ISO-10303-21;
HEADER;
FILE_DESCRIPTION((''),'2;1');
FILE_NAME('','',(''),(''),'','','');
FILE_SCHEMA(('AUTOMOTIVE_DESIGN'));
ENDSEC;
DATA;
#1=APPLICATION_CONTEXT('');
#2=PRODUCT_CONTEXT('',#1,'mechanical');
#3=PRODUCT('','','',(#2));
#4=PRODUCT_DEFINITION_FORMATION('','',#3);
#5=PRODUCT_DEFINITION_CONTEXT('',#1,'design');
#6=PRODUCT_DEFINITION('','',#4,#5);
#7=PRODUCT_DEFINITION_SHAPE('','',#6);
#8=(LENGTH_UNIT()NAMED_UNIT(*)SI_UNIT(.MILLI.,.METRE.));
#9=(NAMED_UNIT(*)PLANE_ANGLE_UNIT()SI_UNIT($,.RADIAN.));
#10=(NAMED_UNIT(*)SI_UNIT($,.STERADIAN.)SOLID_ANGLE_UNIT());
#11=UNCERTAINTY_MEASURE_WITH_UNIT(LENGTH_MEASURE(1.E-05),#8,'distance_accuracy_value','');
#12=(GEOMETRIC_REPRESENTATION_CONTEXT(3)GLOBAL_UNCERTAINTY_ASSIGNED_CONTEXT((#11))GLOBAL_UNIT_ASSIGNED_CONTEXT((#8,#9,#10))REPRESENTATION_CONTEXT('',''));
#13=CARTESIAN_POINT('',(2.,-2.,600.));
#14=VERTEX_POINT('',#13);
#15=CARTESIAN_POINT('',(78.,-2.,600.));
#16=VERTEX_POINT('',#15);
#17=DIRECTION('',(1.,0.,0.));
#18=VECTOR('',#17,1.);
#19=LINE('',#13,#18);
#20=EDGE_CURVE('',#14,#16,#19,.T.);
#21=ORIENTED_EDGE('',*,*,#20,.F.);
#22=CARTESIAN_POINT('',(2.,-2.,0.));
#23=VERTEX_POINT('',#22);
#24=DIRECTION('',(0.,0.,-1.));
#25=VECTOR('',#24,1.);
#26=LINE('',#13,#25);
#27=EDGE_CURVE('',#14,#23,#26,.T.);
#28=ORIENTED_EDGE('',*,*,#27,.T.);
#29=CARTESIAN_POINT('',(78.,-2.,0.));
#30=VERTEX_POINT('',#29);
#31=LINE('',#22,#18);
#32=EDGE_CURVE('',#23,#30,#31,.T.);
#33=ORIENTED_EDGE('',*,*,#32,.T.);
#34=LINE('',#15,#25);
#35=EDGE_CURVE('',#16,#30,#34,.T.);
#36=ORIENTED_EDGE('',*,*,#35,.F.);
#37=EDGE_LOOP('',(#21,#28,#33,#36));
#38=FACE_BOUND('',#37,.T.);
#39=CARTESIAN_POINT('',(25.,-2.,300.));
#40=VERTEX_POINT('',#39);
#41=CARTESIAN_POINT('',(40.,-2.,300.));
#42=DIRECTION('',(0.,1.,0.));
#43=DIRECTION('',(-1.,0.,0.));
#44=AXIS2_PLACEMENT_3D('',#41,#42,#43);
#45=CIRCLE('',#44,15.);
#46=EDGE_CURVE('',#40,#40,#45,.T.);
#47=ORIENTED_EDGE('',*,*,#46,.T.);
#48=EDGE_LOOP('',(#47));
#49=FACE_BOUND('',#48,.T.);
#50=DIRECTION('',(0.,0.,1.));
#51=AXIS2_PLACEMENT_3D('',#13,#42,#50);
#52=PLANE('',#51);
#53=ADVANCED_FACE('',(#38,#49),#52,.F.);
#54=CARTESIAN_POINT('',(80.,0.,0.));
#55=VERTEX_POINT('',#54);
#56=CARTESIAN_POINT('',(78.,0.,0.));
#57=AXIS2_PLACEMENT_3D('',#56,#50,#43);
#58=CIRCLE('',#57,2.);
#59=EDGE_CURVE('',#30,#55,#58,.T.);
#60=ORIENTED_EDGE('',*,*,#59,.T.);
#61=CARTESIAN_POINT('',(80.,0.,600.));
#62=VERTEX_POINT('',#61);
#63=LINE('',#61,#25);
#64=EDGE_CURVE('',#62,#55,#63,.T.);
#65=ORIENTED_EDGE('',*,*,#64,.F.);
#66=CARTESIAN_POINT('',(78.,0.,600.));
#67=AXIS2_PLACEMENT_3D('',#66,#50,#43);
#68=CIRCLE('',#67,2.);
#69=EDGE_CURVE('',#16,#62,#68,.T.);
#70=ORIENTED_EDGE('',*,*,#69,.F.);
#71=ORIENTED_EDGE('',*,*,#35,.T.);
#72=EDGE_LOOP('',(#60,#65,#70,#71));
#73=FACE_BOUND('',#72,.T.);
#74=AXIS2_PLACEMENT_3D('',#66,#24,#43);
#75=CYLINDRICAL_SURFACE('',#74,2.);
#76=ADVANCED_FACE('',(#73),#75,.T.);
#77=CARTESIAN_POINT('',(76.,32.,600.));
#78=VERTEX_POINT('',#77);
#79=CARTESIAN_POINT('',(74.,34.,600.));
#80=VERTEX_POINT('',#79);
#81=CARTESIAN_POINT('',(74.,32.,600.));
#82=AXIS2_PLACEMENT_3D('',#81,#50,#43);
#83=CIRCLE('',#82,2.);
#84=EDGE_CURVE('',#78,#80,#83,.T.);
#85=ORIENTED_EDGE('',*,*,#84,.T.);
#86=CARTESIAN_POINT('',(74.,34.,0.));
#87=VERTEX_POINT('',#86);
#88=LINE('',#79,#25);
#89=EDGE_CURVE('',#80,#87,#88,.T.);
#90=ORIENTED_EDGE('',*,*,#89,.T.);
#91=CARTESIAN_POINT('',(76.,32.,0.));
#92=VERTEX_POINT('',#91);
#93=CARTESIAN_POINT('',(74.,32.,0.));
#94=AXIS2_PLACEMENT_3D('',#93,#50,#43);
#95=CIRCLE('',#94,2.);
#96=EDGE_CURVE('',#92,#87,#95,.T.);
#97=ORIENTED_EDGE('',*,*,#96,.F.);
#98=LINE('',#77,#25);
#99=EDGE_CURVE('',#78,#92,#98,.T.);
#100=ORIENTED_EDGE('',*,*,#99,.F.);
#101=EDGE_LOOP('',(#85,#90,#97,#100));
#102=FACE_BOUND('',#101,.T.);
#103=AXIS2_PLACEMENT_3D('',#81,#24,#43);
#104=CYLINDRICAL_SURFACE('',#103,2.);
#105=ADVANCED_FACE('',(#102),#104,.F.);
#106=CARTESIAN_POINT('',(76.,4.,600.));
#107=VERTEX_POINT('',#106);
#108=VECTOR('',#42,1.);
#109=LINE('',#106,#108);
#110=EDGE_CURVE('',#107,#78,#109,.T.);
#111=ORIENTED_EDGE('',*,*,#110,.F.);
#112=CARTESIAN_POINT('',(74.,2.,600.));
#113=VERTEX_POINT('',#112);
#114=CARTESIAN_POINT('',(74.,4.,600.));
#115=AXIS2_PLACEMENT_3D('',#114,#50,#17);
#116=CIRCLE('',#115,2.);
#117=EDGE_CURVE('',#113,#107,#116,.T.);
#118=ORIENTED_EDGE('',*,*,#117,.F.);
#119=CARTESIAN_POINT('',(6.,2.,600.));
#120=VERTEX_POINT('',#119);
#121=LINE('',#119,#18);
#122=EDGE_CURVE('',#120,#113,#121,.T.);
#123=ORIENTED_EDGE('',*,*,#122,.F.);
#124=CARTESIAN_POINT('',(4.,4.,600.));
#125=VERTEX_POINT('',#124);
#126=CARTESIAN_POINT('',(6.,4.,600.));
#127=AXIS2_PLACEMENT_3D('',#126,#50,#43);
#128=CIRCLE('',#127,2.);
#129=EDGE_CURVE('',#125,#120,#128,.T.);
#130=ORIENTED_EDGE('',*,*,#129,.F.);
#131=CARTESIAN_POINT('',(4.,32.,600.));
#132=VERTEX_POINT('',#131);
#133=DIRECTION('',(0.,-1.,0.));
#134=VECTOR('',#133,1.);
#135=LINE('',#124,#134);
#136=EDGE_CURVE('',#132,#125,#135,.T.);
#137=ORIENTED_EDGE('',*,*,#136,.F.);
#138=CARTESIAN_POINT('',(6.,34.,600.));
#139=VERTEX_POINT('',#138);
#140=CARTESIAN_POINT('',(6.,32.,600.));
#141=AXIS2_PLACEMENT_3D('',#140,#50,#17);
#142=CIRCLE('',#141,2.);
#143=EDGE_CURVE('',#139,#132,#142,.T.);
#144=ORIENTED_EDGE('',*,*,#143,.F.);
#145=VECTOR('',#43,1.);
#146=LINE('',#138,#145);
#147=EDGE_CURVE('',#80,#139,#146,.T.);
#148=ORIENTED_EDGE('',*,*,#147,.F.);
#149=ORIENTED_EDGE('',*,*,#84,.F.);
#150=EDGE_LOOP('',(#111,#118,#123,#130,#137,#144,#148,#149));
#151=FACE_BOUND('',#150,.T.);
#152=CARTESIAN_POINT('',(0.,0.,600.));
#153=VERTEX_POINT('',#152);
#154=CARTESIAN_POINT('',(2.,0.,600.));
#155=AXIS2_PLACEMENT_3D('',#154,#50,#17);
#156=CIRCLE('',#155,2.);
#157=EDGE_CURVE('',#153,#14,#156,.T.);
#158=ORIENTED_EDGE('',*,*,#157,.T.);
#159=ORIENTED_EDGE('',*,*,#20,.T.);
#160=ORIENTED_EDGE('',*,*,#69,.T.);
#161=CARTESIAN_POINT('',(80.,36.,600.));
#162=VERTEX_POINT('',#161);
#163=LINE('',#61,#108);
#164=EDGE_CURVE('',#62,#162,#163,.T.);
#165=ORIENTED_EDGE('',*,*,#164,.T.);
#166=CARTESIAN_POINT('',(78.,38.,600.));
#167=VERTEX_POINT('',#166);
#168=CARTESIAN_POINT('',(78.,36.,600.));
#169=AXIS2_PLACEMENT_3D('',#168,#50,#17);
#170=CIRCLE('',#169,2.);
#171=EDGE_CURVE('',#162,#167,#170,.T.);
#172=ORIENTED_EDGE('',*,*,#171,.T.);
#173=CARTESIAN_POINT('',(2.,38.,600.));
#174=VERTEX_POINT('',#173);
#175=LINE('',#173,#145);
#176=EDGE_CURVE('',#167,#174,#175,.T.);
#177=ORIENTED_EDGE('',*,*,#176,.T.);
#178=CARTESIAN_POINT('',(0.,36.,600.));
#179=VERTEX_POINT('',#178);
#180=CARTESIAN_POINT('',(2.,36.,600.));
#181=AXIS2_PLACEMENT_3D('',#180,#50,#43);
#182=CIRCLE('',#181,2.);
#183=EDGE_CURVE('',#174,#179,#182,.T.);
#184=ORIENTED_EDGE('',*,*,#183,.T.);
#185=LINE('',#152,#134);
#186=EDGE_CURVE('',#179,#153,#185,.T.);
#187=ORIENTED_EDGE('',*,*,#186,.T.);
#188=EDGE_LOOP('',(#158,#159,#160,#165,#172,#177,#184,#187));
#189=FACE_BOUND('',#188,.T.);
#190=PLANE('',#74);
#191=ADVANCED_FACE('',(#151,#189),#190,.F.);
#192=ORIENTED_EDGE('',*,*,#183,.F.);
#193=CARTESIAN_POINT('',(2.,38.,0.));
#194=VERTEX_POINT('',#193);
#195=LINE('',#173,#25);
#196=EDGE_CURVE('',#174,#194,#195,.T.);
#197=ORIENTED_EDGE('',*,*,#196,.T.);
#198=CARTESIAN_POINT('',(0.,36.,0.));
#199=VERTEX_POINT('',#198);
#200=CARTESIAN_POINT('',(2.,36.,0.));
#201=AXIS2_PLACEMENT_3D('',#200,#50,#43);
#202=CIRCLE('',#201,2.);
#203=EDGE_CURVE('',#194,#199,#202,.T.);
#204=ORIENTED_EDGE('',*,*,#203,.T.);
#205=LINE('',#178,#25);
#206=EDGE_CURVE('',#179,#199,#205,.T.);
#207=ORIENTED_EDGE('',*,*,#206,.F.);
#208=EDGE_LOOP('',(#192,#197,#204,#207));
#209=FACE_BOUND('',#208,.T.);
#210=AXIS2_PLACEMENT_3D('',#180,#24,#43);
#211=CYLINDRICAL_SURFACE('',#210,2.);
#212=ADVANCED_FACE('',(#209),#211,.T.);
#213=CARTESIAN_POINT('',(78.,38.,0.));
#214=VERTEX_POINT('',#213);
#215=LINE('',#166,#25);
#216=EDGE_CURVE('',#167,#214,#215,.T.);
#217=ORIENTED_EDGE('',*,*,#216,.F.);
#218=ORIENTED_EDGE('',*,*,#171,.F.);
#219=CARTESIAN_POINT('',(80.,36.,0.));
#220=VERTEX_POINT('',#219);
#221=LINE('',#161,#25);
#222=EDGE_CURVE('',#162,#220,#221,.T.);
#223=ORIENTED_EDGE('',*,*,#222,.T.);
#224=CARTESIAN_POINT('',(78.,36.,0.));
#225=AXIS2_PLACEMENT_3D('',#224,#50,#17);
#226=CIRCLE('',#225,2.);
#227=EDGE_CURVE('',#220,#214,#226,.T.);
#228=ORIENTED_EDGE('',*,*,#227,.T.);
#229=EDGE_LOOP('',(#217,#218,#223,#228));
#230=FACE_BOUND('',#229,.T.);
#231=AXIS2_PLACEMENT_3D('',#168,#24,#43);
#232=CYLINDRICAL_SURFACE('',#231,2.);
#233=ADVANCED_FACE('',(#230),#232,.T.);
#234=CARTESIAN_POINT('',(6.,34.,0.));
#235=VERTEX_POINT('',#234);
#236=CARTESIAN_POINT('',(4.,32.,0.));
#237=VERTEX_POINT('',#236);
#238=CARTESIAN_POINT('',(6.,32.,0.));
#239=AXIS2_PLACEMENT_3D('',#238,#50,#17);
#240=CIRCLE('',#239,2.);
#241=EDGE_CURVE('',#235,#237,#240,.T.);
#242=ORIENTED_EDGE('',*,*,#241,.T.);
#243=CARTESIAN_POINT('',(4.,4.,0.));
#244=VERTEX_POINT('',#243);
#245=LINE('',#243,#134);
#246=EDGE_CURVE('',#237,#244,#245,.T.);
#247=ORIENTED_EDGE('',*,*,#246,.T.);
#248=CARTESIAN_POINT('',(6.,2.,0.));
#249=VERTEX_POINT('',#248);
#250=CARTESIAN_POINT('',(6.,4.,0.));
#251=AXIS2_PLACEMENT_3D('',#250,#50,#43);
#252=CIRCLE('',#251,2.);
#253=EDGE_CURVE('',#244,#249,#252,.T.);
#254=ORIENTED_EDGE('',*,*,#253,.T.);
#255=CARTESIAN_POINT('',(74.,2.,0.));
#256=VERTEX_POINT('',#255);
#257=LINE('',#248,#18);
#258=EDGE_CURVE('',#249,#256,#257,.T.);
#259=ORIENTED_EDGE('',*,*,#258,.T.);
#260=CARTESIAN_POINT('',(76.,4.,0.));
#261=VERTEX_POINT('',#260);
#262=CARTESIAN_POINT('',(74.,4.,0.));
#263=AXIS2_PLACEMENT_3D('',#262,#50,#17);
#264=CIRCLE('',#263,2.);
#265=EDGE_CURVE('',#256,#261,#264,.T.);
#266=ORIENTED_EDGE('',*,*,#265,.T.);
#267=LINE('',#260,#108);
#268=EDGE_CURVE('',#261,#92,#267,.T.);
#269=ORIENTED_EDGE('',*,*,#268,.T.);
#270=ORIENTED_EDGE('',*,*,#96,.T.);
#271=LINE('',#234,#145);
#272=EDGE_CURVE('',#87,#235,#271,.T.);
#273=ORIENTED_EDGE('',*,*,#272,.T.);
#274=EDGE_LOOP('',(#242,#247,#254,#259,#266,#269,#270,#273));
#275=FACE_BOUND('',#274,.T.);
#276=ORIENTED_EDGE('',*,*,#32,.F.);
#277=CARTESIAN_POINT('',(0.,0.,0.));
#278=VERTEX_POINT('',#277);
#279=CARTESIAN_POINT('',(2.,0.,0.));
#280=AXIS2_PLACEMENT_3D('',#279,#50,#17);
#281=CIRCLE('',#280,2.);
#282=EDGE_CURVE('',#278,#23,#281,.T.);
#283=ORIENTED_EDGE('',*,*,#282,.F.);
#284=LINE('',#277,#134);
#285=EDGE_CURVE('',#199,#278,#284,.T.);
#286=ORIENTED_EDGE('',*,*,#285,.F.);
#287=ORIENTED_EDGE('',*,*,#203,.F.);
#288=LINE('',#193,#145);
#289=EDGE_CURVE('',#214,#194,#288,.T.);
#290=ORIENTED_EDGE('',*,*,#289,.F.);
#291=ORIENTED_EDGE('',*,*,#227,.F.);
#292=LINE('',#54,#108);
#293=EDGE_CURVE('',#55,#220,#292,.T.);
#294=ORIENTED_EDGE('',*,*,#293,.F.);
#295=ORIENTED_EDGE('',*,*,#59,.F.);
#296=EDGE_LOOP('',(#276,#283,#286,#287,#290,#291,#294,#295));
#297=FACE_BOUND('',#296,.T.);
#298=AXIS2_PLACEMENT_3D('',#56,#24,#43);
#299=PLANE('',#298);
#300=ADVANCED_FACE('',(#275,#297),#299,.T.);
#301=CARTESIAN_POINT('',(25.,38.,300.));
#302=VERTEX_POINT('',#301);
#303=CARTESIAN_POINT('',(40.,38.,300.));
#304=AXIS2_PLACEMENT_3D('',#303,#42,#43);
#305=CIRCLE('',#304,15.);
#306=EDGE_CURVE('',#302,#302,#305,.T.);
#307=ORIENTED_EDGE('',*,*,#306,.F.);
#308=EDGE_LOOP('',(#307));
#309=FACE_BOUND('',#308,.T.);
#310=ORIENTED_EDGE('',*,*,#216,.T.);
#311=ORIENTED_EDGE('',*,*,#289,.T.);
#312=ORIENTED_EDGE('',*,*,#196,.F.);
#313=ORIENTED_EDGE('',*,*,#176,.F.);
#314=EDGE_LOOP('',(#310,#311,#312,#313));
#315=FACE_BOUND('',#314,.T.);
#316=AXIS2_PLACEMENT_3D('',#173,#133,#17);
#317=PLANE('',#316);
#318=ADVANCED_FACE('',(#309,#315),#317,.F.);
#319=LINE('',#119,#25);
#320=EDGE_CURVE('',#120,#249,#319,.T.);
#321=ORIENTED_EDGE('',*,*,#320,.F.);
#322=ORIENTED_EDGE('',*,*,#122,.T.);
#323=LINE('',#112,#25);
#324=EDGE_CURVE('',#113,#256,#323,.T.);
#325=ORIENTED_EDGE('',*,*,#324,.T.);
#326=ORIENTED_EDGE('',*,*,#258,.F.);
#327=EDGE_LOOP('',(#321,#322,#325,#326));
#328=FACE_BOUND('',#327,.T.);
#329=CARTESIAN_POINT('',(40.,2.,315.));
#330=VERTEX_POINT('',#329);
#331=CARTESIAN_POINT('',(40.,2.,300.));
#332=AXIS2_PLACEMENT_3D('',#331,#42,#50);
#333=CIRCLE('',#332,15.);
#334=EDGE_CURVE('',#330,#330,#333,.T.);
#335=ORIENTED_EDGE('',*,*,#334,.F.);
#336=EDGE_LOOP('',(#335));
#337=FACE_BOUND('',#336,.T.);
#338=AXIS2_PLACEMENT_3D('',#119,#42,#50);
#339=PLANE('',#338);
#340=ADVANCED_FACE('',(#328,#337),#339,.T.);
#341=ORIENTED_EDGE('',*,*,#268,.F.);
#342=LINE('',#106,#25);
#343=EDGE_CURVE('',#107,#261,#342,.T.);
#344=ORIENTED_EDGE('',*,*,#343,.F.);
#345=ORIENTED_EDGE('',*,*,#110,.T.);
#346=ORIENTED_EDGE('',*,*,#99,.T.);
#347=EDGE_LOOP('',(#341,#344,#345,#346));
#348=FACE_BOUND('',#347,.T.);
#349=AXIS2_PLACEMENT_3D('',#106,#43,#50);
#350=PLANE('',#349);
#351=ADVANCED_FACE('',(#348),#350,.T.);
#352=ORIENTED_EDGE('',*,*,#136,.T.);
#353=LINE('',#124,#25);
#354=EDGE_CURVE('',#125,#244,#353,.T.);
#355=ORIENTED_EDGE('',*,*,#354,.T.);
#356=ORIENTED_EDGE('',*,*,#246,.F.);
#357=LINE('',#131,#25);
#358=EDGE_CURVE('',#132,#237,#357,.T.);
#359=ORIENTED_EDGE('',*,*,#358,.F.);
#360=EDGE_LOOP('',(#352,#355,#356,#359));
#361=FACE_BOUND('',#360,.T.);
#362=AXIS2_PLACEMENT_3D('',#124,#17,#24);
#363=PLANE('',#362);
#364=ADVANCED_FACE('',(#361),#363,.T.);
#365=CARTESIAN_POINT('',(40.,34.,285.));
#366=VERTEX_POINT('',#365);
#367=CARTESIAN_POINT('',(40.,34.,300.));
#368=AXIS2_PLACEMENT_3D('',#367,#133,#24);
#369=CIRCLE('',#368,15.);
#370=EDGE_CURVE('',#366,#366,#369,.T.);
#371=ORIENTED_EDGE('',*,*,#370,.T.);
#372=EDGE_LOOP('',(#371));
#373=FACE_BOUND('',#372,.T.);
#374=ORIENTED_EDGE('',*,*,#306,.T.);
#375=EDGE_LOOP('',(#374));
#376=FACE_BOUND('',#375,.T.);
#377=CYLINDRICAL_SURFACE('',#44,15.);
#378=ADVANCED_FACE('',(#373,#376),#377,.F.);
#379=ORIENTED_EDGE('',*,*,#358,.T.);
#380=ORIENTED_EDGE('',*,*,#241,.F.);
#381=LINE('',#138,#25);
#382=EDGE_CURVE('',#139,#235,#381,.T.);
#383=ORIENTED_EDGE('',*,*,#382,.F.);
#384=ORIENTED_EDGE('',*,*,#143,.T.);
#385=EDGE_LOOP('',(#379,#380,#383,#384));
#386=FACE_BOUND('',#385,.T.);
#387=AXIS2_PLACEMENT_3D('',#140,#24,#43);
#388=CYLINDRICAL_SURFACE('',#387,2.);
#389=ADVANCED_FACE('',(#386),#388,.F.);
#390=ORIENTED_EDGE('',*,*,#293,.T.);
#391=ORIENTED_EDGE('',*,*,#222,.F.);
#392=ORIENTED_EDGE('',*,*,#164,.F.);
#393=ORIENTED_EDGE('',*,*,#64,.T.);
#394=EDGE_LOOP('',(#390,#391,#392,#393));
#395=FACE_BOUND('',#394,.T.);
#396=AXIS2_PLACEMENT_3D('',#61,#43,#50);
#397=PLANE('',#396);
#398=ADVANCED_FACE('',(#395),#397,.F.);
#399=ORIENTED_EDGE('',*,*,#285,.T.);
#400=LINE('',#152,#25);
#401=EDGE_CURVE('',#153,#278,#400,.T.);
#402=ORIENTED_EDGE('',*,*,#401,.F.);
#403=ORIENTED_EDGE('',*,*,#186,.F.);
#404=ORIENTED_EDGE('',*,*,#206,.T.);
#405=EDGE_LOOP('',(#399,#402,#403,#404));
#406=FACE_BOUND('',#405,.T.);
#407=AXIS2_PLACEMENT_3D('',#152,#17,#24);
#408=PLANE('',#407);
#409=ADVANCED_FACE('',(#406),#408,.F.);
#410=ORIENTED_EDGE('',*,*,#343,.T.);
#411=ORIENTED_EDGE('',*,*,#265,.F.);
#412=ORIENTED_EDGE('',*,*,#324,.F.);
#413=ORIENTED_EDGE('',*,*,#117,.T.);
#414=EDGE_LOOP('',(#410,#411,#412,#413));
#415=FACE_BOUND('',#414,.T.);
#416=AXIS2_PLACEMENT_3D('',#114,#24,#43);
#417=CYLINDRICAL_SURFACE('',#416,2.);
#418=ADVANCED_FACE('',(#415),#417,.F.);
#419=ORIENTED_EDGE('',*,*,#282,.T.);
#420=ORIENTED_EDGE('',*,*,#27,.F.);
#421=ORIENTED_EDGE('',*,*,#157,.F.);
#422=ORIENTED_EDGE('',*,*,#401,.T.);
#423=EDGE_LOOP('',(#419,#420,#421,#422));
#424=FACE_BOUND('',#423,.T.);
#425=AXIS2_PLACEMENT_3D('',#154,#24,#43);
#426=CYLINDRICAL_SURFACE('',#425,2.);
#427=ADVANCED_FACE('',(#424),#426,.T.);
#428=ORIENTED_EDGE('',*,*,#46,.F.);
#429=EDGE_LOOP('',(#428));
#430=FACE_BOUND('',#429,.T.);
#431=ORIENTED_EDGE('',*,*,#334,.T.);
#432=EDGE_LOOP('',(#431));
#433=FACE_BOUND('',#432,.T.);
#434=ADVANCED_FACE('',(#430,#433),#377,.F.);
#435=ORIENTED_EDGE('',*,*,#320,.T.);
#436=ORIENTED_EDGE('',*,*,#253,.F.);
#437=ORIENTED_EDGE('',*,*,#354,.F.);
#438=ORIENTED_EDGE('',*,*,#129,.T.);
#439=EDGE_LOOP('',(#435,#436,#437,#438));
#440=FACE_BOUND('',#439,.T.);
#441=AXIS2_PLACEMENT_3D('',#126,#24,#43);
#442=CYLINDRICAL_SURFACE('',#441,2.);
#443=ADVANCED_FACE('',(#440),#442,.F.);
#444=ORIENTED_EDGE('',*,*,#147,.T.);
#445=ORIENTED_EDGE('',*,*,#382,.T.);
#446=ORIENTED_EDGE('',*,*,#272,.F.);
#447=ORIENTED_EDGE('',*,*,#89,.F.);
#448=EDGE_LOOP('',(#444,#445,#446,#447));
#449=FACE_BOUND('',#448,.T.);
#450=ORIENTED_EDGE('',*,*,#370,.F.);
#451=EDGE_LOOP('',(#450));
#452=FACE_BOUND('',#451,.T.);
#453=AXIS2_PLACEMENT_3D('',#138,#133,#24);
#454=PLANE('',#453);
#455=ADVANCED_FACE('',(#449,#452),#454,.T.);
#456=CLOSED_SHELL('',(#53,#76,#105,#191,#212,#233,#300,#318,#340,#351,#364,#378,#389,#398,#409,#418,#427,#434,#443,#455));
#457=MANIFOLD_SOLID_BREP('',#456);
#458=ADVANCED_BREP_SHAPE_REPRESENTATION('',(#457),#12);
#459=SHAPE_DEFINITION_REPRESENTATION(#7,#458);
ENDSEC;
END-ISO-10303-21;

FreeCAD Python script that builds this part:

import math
import FreeCAD as App
import Part
import Sketcher
from FreeCAD import Vector

doc = App.newDocument("Part")
body = doc.addObject("PartDesign::Body", "Body")

# Sketch on XY plane
sketch1 = body.newObject("Sketcher::SketchObject", "Sketch")
sketch1.AttachmentSupport = (doc.getObject("XY_Plane"), [""])
sketch1.MapMode = "FlatFace"
sketch1.addGeometry(Part.LineSegment(Vector(2, -2, 0), Vector(78, -2, 0)), False)
sketch1.addGeometry(Part.ArcOfCircle(Part.Circle(Vector(78, 0, 0), Vector(0, 0, 1), 2), math.radians(-90), math.radians(0)), False)
sketch1.addGeometry(Part.LineSegment(Vector(80, 0, 0), Vector(80, 36, 0)), False)
sketch1.addGeometry(Part.ArcOfCircle(Part.Circle(Vector(78, 36, 0), Vector(0, 0, 1), 2), math.radians(0), math.radians(90)), False)
sketch1.addGeometry(Part.LineSegment(Vector(78, 38, 0), Vector(2, 38, 0)), False)
sketch1.addGeometry(Part.ArcOfCircle(Part.Circle(Vector(2, 36, 0), Vector(0, 0, 1), 2), math.radians(90), math.radians(180)), False)
sketch1.addGeometry(Part.LineSegment(Vector(0, 36, 0), Vector(0, 0, 0)), False)
sketch1.addGeometry(Part.ArcOfCircle(Part.Circle(Vector(2, 0, 0), Vector(0, 0, 1), 2), math.radians(-180), math.radians(-90)), False)
sketch1.addGeometry(Part.ArcOfCircle(Part.Circle(Vector(6, 4, 0), Vector(0, 0, 1), 2), math.radians(-180), math.radians(-90)), False)
sketch1.addGeometry(Part.LineSegment(Vector(4, 4, 0), Vector(4, 32, 0)), False)
sketch1.addGeometry(Part.ArcOfCircle(Part.Circle(Vector(6, 32, 0), Vector(0, 0, 1), 2), math.radians(90), math.radians(180)), False)
sketch1.addGeometry(Part.LineSegment(Vector(6, 34, 0), Vector(74, 34, 0)), False)
sketch1.addGeometry(Part.ArcOfCircle(Part.Circle(Vector(74, 32, 0), Vector(0, 0, 1), 2), math.radians(0), math.radians(90)), False)
sketch1.addGeometry(Part.LineSegment(Vector(76, 32, 0), Vector(76, 4, 0)), False)
sketch1.addGeometry(Part.ArcOfCircle(Part.Circle(Vector(74, 4, 0), Vector(0, 0, 1), 2), math.radians(-90), math.radians(0)), False)
sketch1.addGeometry(Part.LineSegment(Vector(74, 2, 0), Vector(6, 2, 0)), False)
sketch1.addConstraint(Sketcher.Constraint("Tangent", 0, 2, 1, 1))
sketch1.addConstraint(Sketcher.Constraint("Tangent", 1, 2, 2, 1))
sketch1.addConstraint(Sketcher.Constraint("Tangent", 2, 2, 3, 1))
sketch1.addConstraint(Sketcher.Constraint("Tangent", 3, 2, 4, 1))
sketch1.addConstraint(Sketcher.Constraint("Tangent", 4, 2, 5, 1))
sketch1.addConstraint(Sketcher.Constraint("Tangent", 5, 2, 6, 1))
sketch1.addConstraint(Sketcher.Constraint("Tangent", 6, 2, 7, 1))
sketch1.addConstraint(Sketcher.Constraint("Tangent", 7, 2, 0, 1))
sketch1.addConstraint(Sketcher.Constraint("Tangent", 8, 1, 9, 1))
sketch1.addConstraint(Sketcher.Constraint("Tangent", 9, 2, 10, 2))
sketch1.addConstraint(Sketcher.Constraint("Tangent", 10, 1, 11, 1))
sketch1.addConstraint(Sketcher.Constraint("Tangent", 11, 2, 12, 2))
sketch1.addConstraint(Sketcher.Constraint("Tangent", 12, 1, 13, 1))
sketch1.addConstraint(Sketcher.Constraint("Tangent", 13, 2, 14, 2))
sketch1.addConstraint(Sketcher.Constraint("Tangent", 14, 1, 15, 1))
sketch1.addConstraint(Sketcher.Constraint("Tangent", 15, 2, 8, 2))
sketch1.addConstraint(Sketcher.Constraint("Horizontal", 0))
sketch1.addConstraint(Sketcher.Constraint("Vertical", 2))
sketch1.addConstraint(Sketcher.Constraint("Horizontal", 4))
sketch1.addConstraint(Sketcher.Constraint("Vertical", 6))
sketch1.addConstraint(Sketcher.Constraint("Vertical", 9))
sketch1.addConstraint(Sketcher.Constraint("Horizontal", 11))
sketch1.addConstraint(Sketcher.Constraint("Vertical", 13))
sketch1.addConstraint(Sketcher.Constraint("Horizontal", 15))
sketch1.addConstraint(Sketcher.Constraint("Coincident", 6, 2, -1, 1))
sketch1.addConstraint(Sketcher.Constraint("Equal", 1, 3))
sketch1.addConstraint(Sketcher.Constraint("Equal", 3, 5))
sketch1.addConstraint(Sketcher.Constraint("Equal", 5, 7))
sketch1.addConstraint(Sketcher.Constraint("Equal", 7, 8))
sketch1.addConstraint(Sketcher.Constraint("Equal", 8, 10))
sketch1.addConstraint(Sketcher.Constraint("Equal", 10, 12))
sketch1.addConstraint(Sketcher.Constraint("Equal", 12, 14))
sketch1.addConstraint(Sketcher.Constraint("Radius", 1, 2.0))
sketch1.addConstraint(Sketcher.Constraint("DistanceX", 0, 1, 0, 2, 76.0))
sketch1.addConstraint(Sketcher.Constraint("DistanceX", 11, 1, 11, 2, 68.0))
sketch1.addConstraint(Sketcher.Constraint("DistanceY", 2, 1, 2, 2, 36.0))
sketch1.addConstraint(Sketcher.Constraint("DistanceY", 9, 1, 9, 2, 28.0))
sketch1.addConstraint(Sketcher.Constraint("DistanceX", -1, 1, 8, 3, 6.0))
sketch1.addConstraint(Sketcher.Constraint("DistanceY", -1, 1, 8, 3, 4.0))
pad1 = body.newObject("PartDesign::Pad", "Pad")
pad1.Profile = sketch1
pad1.Length = 600

# Sketch on XZ plane
sketch2 = body.newObject("Sketcher::SketchObject", "Sketch001")
sketch2.AttachmentSupport = (doc.getObject("XZ_Plane"), [""])
sketch2.MapMode = "FlatFace"
sketch2.AttachmentOffset = App.Placement(Vector(0, 0, -38), App.Rotation())
sketch2.addGeometry(Part.Circle(Vector(40, 300, 0), Vector(0, 0, 1), 15), False)
sketch2.addConstraint(Sketcher.Constraint("Diameter", 0, 30.0))
sketch2.addConstraint(Sketcher.Constraint("DistanceX", -1, 1, 0, 3, 40.0))
sketch2.addConstraint(Sketcher.Constraint("DistanceY", -1, 1, 0, 3, 300.0))
pocket1 = body.newObject("PartDesign::Pocket", "Pocket")
pocket1.Profile = sketch2
pocket1.Type = "ThroughAll"
pocket1.Reversed = True

doc.recompute()
